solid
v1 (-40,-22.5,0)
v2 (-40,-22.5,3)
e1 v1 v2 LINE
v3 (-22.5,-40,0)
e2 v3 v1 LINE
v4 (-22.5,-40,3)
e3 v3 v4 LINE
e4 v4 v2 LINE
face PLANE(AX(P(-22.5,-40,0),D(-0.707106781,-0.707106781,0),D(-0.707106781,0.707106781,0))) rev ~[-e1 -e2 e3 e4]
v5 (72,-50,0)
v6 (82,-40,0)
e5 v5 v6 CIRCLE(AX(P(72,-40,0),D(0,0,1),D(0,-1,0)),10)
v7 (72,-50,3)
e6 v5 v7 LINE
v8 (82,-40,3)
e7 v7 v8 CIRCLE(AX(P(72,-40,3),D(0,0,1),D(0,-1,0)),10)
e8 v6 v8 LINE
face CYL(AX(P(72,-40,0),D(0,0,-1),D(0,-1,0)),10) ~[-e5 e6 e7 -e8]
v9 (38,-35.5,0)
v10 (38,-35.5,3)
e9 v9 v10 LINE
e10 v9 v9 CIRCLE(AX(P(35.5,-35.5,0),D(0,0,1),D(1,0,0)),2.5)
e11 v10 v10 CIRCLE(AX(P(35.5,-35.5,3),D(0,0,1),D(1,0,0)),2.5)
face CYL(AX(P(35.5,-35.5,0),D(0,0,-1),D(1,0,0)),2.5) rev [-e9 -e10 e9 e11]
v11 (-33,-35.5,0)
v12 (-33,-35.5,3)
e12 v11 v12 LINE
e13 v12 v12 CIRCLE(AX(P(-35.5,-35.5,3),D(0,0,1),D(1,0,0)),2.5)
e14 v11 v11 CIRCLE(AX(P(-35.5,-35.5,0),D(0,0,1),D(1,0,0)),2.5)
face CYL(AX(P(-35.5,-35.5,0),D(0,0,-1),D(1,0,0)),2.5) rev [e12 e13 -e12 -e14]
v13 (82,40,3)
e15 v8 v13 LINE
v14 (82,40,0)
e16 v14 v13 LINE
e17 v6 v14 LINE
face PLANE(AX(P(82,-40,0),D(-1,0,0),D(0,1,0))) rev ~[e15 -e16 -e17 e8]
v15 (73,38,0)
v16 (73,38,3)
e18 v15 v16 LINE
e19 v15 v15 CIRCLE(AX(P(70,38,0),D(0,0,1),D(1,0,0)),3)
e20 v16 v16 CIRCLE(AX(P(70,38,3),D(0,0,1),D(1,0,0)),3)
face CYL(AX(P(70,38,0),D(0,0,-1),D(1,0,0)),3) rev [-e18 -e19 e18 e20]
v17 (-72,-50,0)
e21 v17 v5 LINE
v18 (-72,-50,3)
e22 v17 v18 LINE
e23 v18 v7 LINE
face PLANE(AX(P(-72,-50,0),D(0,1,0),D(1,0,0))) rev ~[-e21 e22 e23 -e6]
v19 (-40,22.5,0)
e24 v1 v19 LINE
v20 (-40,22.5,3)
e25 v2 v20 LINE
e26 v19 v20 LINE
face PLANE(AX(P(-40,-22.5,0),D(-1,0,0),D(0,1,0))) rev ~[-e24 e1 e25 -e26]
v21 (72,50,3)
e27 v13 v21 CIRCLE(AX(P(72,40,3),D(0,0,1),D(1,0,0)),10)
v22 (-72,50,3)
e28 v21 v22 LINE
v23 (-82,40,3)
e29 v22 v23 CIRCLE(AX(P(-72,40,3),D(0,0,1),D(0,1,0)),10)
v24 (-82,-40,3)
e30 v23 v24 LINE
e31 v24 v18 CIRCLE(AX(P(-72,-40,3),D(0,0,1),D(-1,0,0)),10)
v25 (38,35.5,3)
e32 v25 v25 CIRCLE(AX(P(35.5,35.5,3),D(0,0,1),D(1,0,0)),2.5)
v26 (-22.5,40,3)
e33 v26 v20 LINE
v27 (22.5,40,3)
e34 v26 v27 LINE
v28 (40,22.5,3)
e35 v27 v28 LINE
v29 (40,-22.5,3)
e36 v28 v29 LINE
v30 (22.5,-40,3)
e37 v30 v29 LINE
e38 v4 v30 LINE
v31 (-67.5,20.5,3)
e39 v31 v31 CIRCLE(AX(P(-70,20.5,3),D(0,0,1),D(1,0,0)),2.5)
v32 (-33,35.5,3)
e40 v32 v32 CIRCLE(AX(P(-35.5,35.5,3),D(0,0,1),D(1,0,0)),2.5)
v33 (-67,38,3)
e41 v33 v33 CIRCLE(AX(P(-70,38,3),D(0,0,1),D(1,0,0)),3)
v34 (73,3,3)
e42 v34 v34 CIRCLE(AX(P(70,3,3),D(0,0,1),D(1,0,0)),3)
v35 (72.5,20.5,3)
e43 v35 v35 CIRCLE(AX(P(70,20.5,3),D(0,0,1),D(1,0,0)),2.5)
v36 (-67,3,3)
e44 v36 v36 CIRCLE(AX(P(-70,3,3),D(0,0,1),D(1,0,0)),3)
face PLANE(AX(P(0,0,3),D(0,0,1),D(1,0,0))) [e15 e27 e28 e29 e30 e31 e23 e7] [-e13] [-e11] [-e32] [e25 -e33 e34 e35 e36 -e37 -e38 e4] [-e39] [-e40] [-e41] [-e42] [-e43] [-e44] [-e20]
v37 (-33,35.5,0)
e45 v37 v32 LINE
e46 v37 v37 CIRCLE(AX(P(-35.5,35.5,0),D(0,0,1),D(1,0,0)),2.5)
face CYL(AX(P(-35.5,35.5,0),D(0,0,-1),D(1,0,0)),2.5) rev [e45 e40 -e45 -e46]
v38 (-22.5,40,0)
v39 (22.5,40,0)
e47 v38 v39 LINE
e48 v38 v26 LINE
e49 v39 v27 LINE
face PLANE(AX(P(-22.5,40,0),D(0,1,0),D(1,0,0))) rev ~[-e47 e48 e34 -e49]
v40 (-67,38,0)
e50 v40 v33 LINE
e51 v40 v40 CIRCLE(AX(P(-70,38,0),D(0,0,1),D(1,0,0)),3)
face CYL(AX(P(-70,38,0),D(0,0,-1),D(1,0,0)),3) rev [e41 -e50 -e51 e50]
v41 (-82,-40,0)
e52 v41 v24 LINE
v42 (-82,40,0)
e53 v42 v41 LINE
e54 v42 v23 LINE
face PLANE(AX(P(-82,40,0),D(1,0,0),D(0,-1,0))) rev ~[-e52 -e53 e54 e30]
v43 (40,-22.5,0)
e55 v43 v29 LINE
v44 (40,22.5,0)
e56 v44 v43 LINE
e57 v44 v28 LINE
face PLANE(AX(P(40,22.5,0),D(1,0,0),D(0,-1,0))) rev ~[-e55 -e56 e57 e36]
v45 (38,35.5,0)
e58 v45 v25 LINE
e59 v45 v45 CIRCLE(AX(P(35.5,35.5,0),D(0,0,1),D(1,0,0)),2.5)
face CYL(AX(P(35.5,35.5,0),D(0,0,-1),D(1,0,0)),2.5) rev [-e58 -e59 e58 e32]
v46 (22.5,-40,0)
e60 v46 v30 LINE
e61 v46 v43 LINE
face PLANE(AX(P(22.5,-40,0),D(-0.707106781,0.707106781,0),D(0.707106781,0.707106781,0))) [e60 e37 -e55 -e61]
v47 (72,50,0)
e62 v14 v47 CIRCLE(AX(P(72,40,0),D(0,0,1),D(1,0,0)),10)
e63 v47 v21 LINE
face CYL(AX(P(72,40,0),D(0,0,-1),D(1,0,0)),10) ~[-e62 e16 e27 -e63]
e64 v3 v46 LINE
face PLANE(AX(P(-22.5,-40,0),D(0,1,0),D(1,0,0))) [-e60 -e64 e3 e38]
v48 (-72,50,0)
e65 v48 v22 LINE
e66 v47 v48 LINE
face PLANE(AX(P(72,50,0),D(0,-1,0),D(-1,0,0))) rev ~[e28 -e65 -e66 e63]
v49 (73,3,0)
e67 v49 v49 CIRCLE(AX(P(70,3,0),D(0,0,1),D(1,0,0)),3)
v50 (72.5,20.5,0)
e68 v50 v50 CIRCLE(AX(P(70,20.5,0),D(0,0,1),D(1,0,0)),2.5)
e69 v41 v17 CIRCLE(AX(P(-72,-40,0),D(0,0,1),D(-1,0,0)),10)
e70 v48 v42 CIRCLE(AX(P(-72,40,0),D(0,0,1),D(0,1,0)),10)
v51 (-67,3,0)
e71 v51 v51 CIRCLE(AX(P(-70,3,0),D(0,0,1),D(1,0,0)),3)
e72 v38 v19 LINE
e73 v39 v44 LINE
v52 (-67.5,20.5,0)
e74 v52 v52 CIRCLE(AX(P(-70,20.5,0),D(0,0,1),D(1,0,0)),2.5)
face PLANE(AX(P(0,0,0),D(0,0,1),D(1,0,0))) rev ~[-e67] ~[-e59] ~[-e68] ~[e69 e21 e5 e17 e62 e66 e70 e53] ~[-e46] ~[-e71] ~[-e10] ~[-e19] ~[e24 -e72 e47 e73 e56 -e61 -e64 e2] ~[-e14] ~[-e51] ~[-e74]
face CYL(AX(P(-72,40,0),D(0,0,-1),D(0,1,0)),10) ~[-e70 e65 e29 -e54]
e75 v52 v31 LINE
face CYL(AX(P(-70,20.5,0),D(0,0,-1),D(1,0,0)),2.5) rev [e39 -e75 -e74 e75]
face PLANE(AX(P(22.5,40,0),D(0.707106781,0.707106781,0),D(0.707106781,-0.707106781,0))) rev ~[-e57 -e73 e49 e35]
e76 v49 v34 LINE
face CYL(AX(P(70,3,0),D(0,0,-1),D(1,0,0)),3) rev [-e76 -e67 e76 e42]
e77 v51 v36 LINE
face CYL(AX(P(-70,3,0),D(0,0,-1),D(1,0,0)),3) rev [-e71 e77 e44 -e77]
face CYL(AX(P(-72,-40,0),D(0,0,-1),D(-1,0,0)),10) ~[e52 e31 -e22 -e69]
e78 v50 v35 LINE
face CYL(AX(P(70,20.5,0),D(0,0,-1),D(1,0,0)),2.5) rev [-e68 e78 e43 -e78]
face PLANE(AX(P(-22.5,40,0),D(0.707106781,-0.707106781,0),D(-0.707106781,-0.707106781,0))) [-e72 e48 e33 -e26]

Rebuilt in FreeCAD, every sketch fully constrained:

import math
import FreeCAD as App
import Part
import Sketcher
Q = App.Units.Quantity

doc = App.newDocument("Part")
body = doc.addObject("PartDesign::Body", "Body")

sketch1 = body.newObject("Sketcher::SketchObject", "Sketch")
sketch1.AttachmentSupport = (doc.getObject("XY_Plane"), [""])
sketch1.MapMode = "FlatFace"
sketch1.addGeometry(Part.ArcOfCircle(Part.Circle(App.Vector(-72, -40, 0), App.Vector(0, 0, 1), 10), math.radians(180), math.radians(270)), False)
sketch1.addGeometry(Part.LineSegment(App.Vector(-72, -50, 0), App.Vector(72, -50, 0)), False)
sketch1.addGeometry(Part.ArcOfCircle(Part.Circle(App.Vector(72, -40, 0), App.Vector(0, 0, 1), 10), math.radians(-90), math.radians(0)), False)
sketch1.addGeometry(Part.LineSegment(App.Vector(82, -40, 0), App.Vector(82, 40, 0)), False)
sketch1.addGeometry(Part.ArcOfCircle(Part.Circle(App.Vector(72, 40, 0), App.Vector(0, 0, 1), 10), math.radians(0), math.radians(90)), False)
sketch1.addGeometry(Part.LineSegment(App.Vector(72, 50, 0), App.Vector(-72, 50, 0)), False)
sketch1.addGeometry(Part.ArcOfCircle(Part.Circle(App.Vector(-72, 40, 0), App.Vector(0, 0, 1), 10), math.radians(90), math.radians(180)), False)
sketch1.addGeometry(Part.LineSegment(App.Vector(-82, 40, 0), App.Vector(-82, -40, 0)), False)
sketch1.addGeometry(Part.Circle(App.Vector(-35.5, -35.5, 0), App.Vector(0, 0, 1), 2.5), False)
sketch1.addGeometry(Part.Circle(App.Vector(35.5, -35.5, 0), App.Vector(0, 0, 1), 2.5), False)
sketch1.addGeometry(Part.Circle(App.Vector(-70, 3, 0), App.Vector(0, 0, 1), 3), False)
sketch1.addGeometry(Part.Circle(App.Vector(-70, 20.5, 0), App.Vector(0, 0, 1), 2.5), False)
sketch1.addGeometry(Part.Circle(App.Vector(-70, 38, 0), App.Vector(0, 0, 1), 3), False)
sketch1.addGeometry(Part.Circle(App.Vector(-35.5, 35.5, 0), App.Vector(0, 0, 1), 2.5), False)
sketch1.addGeometry(Part.LineSegment(App.Vector(-40, 22.5, 0), App.Vector(-22.5, 40, 0)), False)
sketch1.addGeometry(Part.LineSegment(App.Vector(-22.5, 40, 0), App.Vector(22.5, 40, 0)), False)
sketch1.addGeometry(Part.LineSegment(App.Vector(22.5, 40, 0), App.Vector(40, 22.5, 0)), False)
sketch1.addGeometry(Part.LineSegment(App.Vector(40, 22.5, 0), App.Vector(40, -22.5, 0)), False)
sketch1.addGeometry(Part.LineSegment(App.Vector(40, -22.5, 0), App.Vector(22.5, -40, 0)), False)
sketch1.addGeometry(Part.LineSegment(App.Vector(22.5, -40, 0), App.Vector(-22.5, -40, 0)), False)
sketch1.addGeometry(Part.LineSegment(App.Vector(-22.5, -40, 0), App.Vector(-40, -22.5, 0)), False)
sketch1.addGeometry(Part.LineSegment(App.Vector(-40, -22.5, 0), App.Vector(-40, 22.5, 0)), False)
sketch1.addGeometry(Part.Circle(App.Vector(70, 3, 0), App.Vector(0, 0, 1), 3), False)
sketch1.addGeometry(Part.Circle(App.Vector(70, 20.5, 0), App.Vector(0, 0, 1), 2.5), False)
sketch1.addGeometry(Part.Circle(App.Vector(35.5, 35.5, 0), App.Vector(0, 0, 1), 2.5), False)
sketch1.addGeometry(Part.Circle(App.Vector(70, 38, 0), App.Vector(0, 0, 1), 3), False)
sketch1.addConstraint(Sketcher.Constraint("Tangent", 0, 2, 1, 1))
sketch1.addConstraint(Sketcher.Constraint("Tangent", 1, 2, 2, 1))
sketch1.addConstraint(Sketcher.Constraint("Tangent", 2, 2, 3, 1))
sketch1.addConstraint(Sketcher.Constraint("Tangent", 3, 2, 4, 1))
sketch1.addConstraint(Sketcher.Constraint("Tangent", 4, 2, 5, 1))
sketch1.addConstraint(Sketcher.Constraint("Tangent", 5, 2, 6, 1))
sketch1.addConstraint(Sketcher.Constraint("Tangent", 6, 2, 7, 1))
sketch1.addConstraint(Sketcher.Constraint("Tangent", 7, 2, 0, 1))
sketch1.addConstraint(Sketcher.Constraint("Coincident", 14, 2, 15, 1))
sketch1.addConstraint(Sketcher.Constraint("Coincident", 15, 2, 16, 1))
sketch1.addConstraint(Sketcher.Constraint("Coincident", 16, 2, 17, 1))
sketch1.addConstraint(Sketcher.Constraint("Coincident", 17, 2, 18, 1))
sketch1.addConstraint(Sketcher.Constraint("Coincident", 18, 2, 19, 1))
sketch1.addConstraint(Sketcher.Constraint("Coincident", 19, 2, 20, 1))
sketch1.addConstraint(Sketcher.Constraint("Coincident", 20, 2, 21, 1))
sketch1.addConstraint(Sketcher.Constraint("Coincident", 21, 2, 14, 1))
sketch1.addConstraint(Sketcher.Constraint("Horizontal", 1))
sketch1.addConstraint(Sketcher.Constraint("Vertical", 3))
sketch1.addConstraint(Sketcher.Constraint("Horizontal", 5))
sketch1.addConstraint(Sketcher.Constraint("Vertical", 7))
sketch1.addConstraint(Sketcher.Constraint("Horizontal", 15))
sketch1.addConstraint(Sketcher.Constraint("Vertical", 17))
sketch1.addConstraint(Sketcher.Constraint("Horizontal", 19))
sketch1.addConstraint(Sketcher.Constraint("Vertical", 21))
sketch1.addConstraint(Sketcher.Constraint("Equal", 0, 2))
sketch1.addConstraint(Sketcher.Constraint("Equal", 2, 4))
sketch1.addConstraint(Sketcher.Constraint("Equal", 4, 6))
sketch1.addConstraint(Sketcher.Constraint("Equal", 8, 9))
sketch1.addConstraint(Sketcher.Constraint("Equal", 9, 11))
sketch1.addConstraint(Sketcher.Constraint("Equal", 10, 12))
sketch1.addConstraint(Sketcher.Constraint("Equal", 11, 13))
sketch1.addConstraint(Sketcher.Constraint("Equal", 12, 22))
sketch1.addConstraint(Sketcher.Constraint("Equal", 13, 23))
sketch1.addConstraint(Sketcher.Constraint("Equal", 23, 24))
sketch1.addConstraint(Sketcher.Constraint("Equal", 22, 25))
sketch1.addConstraint(Sketcher.Constraint("Symmetric", 0, 3, 4, 3, -1, 1))
sketch1.addConstraint(Sketcher.Constraint("Symmetric", 9, 3, 13, 3, -1, 1))
sketch1.addConstraint(Sketcher.Constraint("Symmetric", 8, 3, 24, 3, -1, 1))
sketch1.addConstraint(Sketcher.Constraint("Symmetric", 14, 2, 18, 2, -1, 1))
sketch1.addConstraint(Sketcher.Constraint("Symmetric", 16, 2, 20, 2, -1, 1))
sketch1.addConstraint(Sketcher.Constraint("Symmetric", 8, 3, 9, 3, -2))
sketch1.addConstraint(Sketcher.Constraint("Symmetric", 10, 3, 22, 3, -2))
sketch1.addConstraint(Sketcher.Constraint("Symmetric", 11, 3, 23, 3, -2))
sketch1.addConstraint(Sketcher.Constraint("Symmetric", 12, 3, 25, 3, -2))
sketch1.addConstraint(Sketcher.Constraint("Perpendicular", 14, 16))
sketch1.addConstraint(Sketcher.Constraint("Perpendicular", 16, 18))
sketch1.addConstraint(Sketcher.Constraint("Perpendicular", 18, 20))
sketch1.addConstraint(Sketcher.Constraint("Horizontal", 6, 2, 14, 2))
sketch1.addConstraint(Sketcher.Constraint("Horizontal", 17, 2, 20, 2))
sketch1.addConstraint(Sketcher.Constraint("Vertical", 10, 3, 11, 3))
sketch1.addConstraint(Sketcher.Constraint("Vertical", 11, 3, 12, 3))
sketch1.addConstraint(Sketcher.Constraint("Vertical", 15, 2, 18, 2))
sketch1.addConstraint(Sketcher.Constraint("Equal", 19, 17))
sketch1.addConstraint(Sketcher.Constraint("Diameter", 8, Q("5 mm")))
sketch1.addConstraint(Sketcher.Constraint("Radius", 0, Q("10 mm")))
sketch1.addConstraint(Sketcher.Constraint("DistanceX", 15, 1, 15, 2, Q("45 mm")))
sketch1.addConstraint(Sketcher.Constraint("DistanceY", 3, 1, 3, 2, Q("80 mm")))
sketch1.addConstraint(Sketcher.Constraint("Diameter", 10, Q("6 mm")))
sketch1.addConstraint(Sketcher.Constraint("DistanceX", 10, 3, -1, 1, Q("70 mm")))
sketch1.addConstraint(Sketcher.Constraint("DistanceX", 8, 3, 9, 3, Q("71 mm")))
sketch1.addConstraint(Sketcher.Constraint("DistanceY", 8, 3, 13, 3, Q("71 mm")))
sketch1.addConstraint(Sketcher.Constraint("DistanceX", 22, 3, 2, 2, Q("12 mm")))
sketch1.addConstraint(Sketcher.Constraint("DistanceY", 25, 3, 4, 2, Q("12 mm")))
sketch1.addConstraint(Sketcher.Constraint("DistanceY", -1, 1, 10, 3, Q("3 mm")))
sketch1.addConstraint(Sketcher.Constraint("DistanceY", 8, 3, 11, 3, Q("56 mm")))
pad1 = body.newObject("PartDesign::Pad", "Pad")
pad1.Profile = sketch1
pad1.Length = 3

doc.recompute()
